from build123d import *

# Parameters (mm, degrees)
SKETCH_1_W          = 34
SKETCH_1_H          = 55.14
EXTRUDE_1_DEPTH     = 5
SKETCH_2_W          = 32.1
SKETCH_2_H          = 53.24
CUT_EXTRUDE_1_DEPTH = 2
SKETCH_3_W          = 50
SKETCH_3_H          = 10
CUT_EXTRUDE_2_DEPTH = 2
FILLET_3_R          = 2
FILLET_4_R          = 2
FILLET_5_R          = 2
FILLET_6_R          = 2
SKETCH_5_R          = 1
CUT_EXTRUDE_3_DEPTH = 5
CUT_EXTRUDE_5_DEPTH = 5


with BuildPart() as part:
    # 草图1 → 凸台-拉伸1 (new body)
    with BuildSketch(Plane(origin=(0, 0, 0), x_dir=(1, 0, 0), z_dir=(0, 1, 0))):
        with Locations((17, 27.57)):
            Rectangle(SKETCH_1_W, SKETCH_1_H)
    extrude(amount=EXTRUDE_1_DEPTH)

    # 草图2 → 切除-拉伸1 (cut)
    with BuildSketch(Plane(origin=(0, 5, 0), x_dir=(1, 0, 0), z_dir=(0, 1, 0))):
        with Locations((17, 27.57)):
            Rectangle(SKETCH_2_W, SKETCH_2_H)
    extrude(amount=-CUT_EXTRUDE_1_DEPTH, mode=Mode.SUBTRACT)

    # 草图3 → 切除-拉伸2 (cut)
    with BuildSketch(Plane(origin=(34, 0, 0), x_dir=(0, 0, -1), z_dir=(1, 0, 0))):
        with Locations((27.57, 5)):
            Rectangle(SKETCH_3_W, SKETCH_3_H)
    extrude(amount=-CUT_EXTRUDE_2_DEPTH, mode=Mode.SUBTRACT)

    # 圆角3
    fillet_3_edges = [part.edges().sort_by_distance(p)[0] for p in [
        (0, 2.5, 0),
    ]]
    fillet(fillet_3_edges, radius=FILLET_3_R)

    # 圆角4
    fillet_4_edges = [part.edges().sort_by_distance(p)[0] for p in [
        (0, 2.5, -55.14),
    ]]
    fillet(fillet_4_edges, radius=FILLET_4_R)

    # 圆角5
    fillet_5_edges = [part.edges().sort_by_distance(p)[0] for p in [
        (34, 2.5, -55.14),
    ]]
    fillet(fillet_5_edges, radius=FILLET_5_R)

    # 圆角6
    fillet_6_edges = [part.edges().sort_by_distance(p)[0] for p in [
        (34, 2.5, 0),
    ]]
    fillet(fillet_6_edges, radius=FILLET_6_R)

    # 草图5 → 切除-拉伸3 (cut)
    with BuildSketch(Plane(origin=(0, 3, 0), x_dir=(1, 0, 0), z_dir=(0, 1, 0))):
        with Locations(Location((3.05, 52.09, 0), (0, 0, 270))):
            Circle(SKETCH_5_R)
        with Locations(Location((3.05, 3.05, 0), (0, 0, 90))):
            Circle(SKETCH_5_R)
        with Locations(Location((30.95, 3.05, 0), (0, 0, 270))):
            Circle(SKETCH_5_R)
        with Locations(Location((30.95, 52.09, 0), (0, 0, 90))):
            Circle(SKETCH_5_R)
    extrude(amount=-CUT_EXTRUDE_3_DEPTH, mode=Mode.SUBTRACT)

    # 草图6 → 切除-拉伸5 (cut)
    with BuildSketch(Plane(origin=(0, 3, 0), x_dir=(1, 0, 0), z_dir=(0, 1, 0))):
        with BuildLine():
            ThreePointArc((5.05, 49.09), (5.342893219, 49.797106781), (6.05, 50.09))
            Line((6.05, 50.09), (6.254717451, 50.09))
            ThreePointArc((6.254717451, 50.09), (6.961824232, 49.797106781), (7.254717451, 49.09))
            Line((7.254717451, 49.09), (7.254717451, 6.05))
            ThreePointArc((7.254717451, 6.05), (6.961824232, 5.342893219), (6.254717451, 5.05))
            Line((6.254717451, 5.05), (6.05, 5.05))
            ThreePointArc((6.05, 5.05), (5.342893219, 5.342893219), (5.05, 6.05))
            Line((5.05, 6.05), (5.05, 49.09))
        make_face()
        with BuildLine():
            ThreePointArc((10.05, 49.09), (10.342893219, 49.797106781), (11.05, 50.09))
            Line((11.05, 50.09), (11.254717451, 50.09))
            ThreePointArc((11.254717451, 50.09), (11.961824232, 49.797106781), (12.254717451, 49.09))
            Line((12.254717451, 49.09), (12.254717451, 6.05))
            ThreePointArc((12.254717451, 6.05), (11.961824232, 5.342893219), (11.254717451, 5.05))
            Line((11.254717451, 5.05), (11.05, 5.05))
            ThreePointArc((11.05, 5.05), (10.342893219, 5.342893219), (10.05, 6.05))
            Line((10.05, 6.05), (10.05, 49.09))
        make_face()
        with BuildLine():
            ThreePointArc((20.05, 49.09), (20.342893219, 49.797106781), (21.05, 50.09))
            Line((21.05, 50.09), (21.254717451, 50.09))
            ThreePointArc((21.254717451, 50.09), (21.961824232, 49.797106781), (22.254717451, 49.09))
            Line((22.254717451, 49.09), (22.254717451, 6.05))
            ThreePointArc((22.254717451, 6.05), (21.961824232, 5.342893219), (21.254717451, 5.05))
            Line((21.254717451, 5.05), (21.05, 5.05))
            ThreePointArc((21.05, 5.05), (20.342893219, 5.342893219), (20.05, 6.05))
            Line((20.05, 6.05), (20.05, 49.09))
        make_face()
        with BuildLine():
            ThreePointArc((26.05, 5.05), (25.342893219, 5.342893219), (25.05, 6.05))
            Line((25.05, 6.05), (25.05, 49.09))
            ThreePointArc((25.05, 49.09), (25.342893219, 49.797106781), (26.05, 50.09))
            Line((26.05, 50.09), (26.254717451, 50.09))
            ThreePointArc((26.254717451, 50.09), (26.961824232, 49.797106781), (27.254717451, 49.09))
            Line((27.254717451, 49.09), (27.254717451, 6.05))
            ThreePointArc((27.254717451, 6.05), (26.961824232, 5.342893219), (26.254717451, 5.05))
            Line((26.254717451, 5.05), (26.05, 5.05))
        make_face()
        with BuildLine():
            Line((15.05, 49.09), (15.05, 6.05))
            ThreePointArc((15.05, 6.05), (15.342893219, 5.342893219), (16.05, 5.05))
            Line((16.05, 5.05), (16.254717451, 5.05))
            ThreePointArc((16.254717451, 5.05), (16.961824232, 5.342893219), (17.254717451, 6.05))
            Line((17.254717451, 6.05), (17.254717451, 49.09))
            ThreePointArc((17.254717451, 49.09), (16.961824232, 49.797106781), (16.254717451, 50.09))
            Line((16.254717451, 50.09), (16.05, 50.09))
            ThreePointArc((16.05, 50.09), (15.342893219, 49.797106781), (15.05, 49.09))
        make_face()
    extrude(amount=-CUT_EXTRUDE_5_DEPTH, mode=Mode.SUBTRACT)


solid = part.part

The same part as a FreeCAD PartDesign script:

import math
import FreeCAD as App
import Part
import Sketcher
from FreeCAD import Vector
Q = App.Units.Quantity


def edges_at(feature, points):
    """Names of the edges that pass closest to the given points."""
    edges = feature.Shape.Edges
    near = lambda p: min(range(len(edges)), key=lambda i: edges[i].distToShape(Part.Vertex(*p))[0])
    return sorted({f"Edge{near(p) + 1}" for p in points})

doc = App.newDocument("Part")
body = doc.addObject("PartDesign::Body", "Body")

# Sketch on XZ plane
sketch1 = body.newObject("Sketcher::SketchObject", "Sketch")
sketch1.AttachmentSupport = (doc.getObject("XZ_Plane"), [""])
sketch1.MapMode = "FlatFace"
sketch1.addGeometry([
    Part.LineSegment(Vector(0, -55, 0), Vector(0, 0, 0)),
    Part.LineSegment(Vector(0, 0, 0), Vector(34, 0, 0)),
    Part.LineSegment(Vector(34, 0, 0), Vector(34, -55, 0)),
    Part.LineSegment(Vector(34, -55, 0), Vector(0, -55, 0)),
], False)
sketch1.addConstraint([
    Sketcher.Constraint("Coincident", 0, 2, 1, 1),
    Sketcher.Constraint("Coincident", 1, 2, 2, 1),
    Sketcher.Constraint("Coincident", 2, 2, 3, 1),
    Sketcher.Constraint("Coincident", 3, 2, 0, 1),
    Sketcher.Constraint("Vertical", 0),
    Sketcher.Constraint("Horizontal", 1),
    Sketcher.Constraint("Vertical", 2),
    Sketcher.Constraint("Horizontal", 3),
    Sketcher.Constraint("Coincident", 0, 2, -1, 1),
    Sketcher.Constraint("DistanceX", 1, 1, 1, 2, Q("34 mm")),
    Sketcher.Constraint("DistanceY", 0, 1, 0, 2, Q("55.14 mm")),
])
pad1 = body.newObject("PartDesign::Pad", "Pad")
pad1.Profile = sketch1
pad1.Length = 5
pad1.Reversed = True

# Sketch on XZ plane
sketch2 = body.newObject("Sketcher::SketchObject", "Sketch001")
sketch2.AttachmentSupport = (doc.getObject("XZ_Plane"), [""])
sketch2.MapMode = "FlatFace"
sketch2.AttachmentOffset = App.Placement(Vector(0, 0, -5), App.Rotation())
sketch2.addGeometry([
    Part.LineSegment(Vector(1, -54, 0), Vector(1, -1, 0)),
    Part.LineSegment(Vector(1, -1, 0), Vector(33, -1, 0)),
    Part.LineSegment(Vector(33, -1, 0), Vector(33, -54, 0)),
    Part.LineSegment(Vector(33, -54, 0), Vector(1, -54, 0)),
], False)
sketch2.addConstraint([
    Sketcher.Constraint("Coincident", 0, 2, 1, 1),
    Sketcher.Constraint("Coincident", 1, 2, 2, 1),
    Sketcher.Constraint("Coincident", 2, 2, 3, 1),
    Sketcher.Constraint("Coincident", 3, 2, 0, 1),
    Sketcher.Constraint("Vertical", 0),
    Sketcher.Constraint("Horizontal", 1),
    Sketcher.Constraint("Vertical", 2),
    Sketcher.Constraint("Horizontal", 3),
    Sketcher.Constraint("DistanceX", 1, 1, 1, 2, Q("32.1 mm")),
    Sketcher.Constraint("DistanceY", 0, 1, 0, 2, Q("53.24 mm")),
    Sketcher.Constraint("DistanceX", -1, 1, 0, 2, Q("0.95 mm")),
    Sketcher.Constraint("DistanceY", 0, 2, -1, 1, Q("0.95 mm")),
])
pocket1 = body.newObject("PartDesign::Pocket", "Pocket")
pocket1.Profile = sketch2
pocket1.Length = 2
pocket1.Reversed = True

# Sketch on YZ plane
sketch3 = body.newObject("Sketcher::SketchObject", "Sketch002")
sketch3.AttachmentSupport = (doc.getObject("YZ_Plane"), [""])
sketch3.MapMode = "FlatFace"
sketch3.AttachmentOffset = App.Placement(Vector(0, 0, 34), App.Rotation())
sketch3.addGeometry([
    Part.LineSegment(Vector(10, -3, 0), Vector(0, -3, 0)),
    Part.LineSegment(Vector(0, -3, 0), Vector(0, -53, 0)),
    Part.LineSegment(Vector(0, -53, 0), Vector(10, -53, 0)),
    Part.LineSegment(Vector(10, -53, 0), Vector(10, -3, 0)),
], False)
sketch3.addConstraint([
    Sketcher.Constraint("Coincident", 0, 2, 1, 1),
    Sketcher.Constraint("Coincident", 1, 2, 2, 1),
    Sketcher.Constraint("Coincident", 2, 2, 3, 1),
    Sketcher.Constraint("Coincident", 3, 2, 0, 1),
    Sketcher.Constraint("Horizontal", 0),
    Sketcher.Constraint("Vertical", 1),
    Sketcher.Constraint("Horizontal", 2),
    Sketcher.Constraint("Vertical", 3),
    Sketcher.Constraint("PointOnObject", 0, 2, -2),
    Sketcher.Constraint("DistanceX", 0, 2, 0, 1, Q("10 mm")),
    Sketcher.Constraint("DistanceY", 1, 2, 1, 1, Q("50 mm")),
    Sketcher.Constraint("DistanceY", 0, 2, -1, 1, Q("2.57 mm")),
])
pocket2 = body.newObject("PartDesign::Pocket", "Pocket001")
pocket2.Profile = sketch3
pocket2.Length = 2
doc.recompute()

fillet = body.newObject("PartDesign::Fillet", "Fillet")
fillet.Base = (pocket2, edges_at(pocket2, [(0, 2.5, 0)]))
fillet.Radius = 2
doc.recompute()

fillet2 = body.newObject("PartDesign::Fillet", "Fillet001")
fillet2.Base = (fillet, edges_at(fillet, [(0, 2.5, -55.14)]))
fillet2.Radius = 2
doc.recompute()

fillet3 = body.newObject("PartDesign::Fillet", "Fillet002")
fillet3.Base = (fillet2, edges_at(fillet2, [(34, 2.5, -55.14)]))
fillet3.Radius = 2
doc.recompute()

fillet4 = body.newObject("PartDesign::Fillet", "Fillet003")
fillet4.Base = (fillet3, edges_at(fillet3, [(34, 2.5, 0)]))
fillet4.Radius = 2

# Sketch on XZ plane
sketch4 = body.newObject("Sketcher::SketchObject", "Sketch003")
sketch4.AttachmentSupport = (doc.getObject("XZ_Plane"), [""])
sketch4.MapMode = "FlatFace"
sketch4.AttachmentOffset = App.Placement(Vector(0, 0, -3), App.Rotation())
sketch4.addGeometry([
    Part.Circle(Vector(3, -52.1, 0), Vector(0, 0, 1), 1),
    Part.Circle(Vector(3, -3, 0), Vector(0, 0, 1), 1),
    Part.Circle(Vector(30.9, -3, 0), Vector(0, 0, 1), 1),
    Part.Circle(Vector(30.9, -52.1, 0), Vector(0, 0, 1), 1),
], False)
sketch4.addConstraint([
    Sketcher.Constraint("Equal", 0, 1),
    Sketcher.Constraint("Equal", 1, 2),
    Sketcher.Constraint("Equal", 2, 3),
    Sketcher.Constraint("Horizontal", 1, 3, 2, 3),
    Sketcher.Constraint("Horizontal", 0, 3, 3, 3),
    Sketcher.Constraint("Vertical", 0, 3, 1, 3),
    Sketcher.Constraint("Vertical", 2, 3, 3, 3),
    Sketcher.Constraint("Diameter", 0, Q("2 mm")),
    Sketcher.Constraint("DistanceX", 1, 3, 2, 3, Q("27.9 mm")),
    Sketcher.Constraint("DistanceX", -1, 1, 0, 3, Q("3.05 mm")),
    Sketcher.Constraint("DistanceY", 0, 3, -1, 1, Q("52.09 mm")),
    Sketcher.Constraint("DistanceY", 1, 3, -1, 1, Q("3.05 mm")),
])
pocket3 = body.newObject("PartDesign::Pocket", "Pocket002")
pocket3.Profile = sketch4
pocket3.Length = 5
pocket3.Reversed = True

# Sketch on XZ plane
sketch5 = body.newObject("Sketcher::SketchObject", "Sketch004")
sketch5.AttachmentSupport = (doc.getObject("XZ_Plane"), [""])
sketch5.MapMode = "FlatFace"
sketch5.AttachmentOffset = App.Placement(Vector(0, 0, -3), App.Rotation())
sketch5.addGeometry([
    Part.ArcOfCircle(Part.Circle(Vector(6.05, -49.09, 0), Vector(0, 0, 1), 1), math.radians(-180), math.radians(-90)),  # 0
    Part.LineSegment(Vector(5.05, -49.09, 0), Vector(5.05, -6.05, 0)),  # 1
    Part.ArcOfCircle(Part.Circle(Vector(6.05, -6.05, 0), Vector(0, 0, 1), 1), math.radians(90), math.radians(180)),  # 2
    Part.LineSegment(Vector(6.05, -5.05, 0), Vector(6.25, -5.05, 0)),  # 3
    Part.ArcOfCircle(Part.Circle(Vector(6.25, -6.05, 0), Vector(0, 0, 1), 1), math.radians(0), math.radians(90)),  # 4
    Part.LineSegment(Vector(7.25, -6.05, 0), Vector(7.25, -49.09, 0)),  # 5
    Part.ArcOfCircle(Part.Circle(Vector(6.25, -49.09, 0), Vector(0, 0, 1), 1), math.radians(-90), math.radians(0)),  # 6
    Part.LineSegment(Vector(6.25, -50.09, 0), Vector(6.05, -50.09, 0)),  # 7
    Part.ArcOfCircle(Part.Circle(Vector(11.05, -49.09, 0), Vector(0, 0, 1), 1), math.radians(-180), math.radians(-90)),  # 8
    Part.LineSegment(Vector(10.05, -49.09, 0), Vector(10.05, -6.05, 0)),  # 9
    Part.ArcOfCircle(Part.Circle(Vector(11.05, -6.05, 0), Vector(0, 0, 1), 1), math.radians(90), math.radians(180)),  # 10
    Part.LineSegment(Vector(11.05, -5.05, 0), Vector(11.25, -5.05, 0)),  # 11
    Part.ArcOfCircle(Part.Circle(Vector(11.25, -6.05, 0), Vector(0, 0, 1), 1), math.radians(0), math.radians(90)),  # 12
    Part.LineSegment(Vector(12.25, -6.05, 0), Vector(12.25, -49.09, 0)),  # 13
    Part.ArcOfCircle(Part.Circle(Vector(11.25, -49.09, 0), Vector(0, 0, 1), 1), math.radians(-90), math.radians(0)),  # 14
    Part.LineSegment(Vector(11.25, -50.09, 0), Vector(11.05, -50.09, 0)),  # 15
    Part.ArcOfCircle(Part.Circle(Vector(21.05, -49.09, 0), Vector(0, 0, 1), 1), math.radians(-180), math.radians(-90)),  # 16
    Part.LineSegment(Vector(20.05, -49.09, 0), Vector(20.05, -6.05, 0)),  # 17
    Part.ArcOfCircle(Part.Circle(Vector(21.05, -6.05, 0), Vector(0, 0, 1), 1), math.radians(90), math.radians(180)),  # 18
    Part.LineSegment(Vector(21.05, -5.05, 0), Vector(21.25, -5.05, 0)),  # 19
    Part.ArcOfCircle(Part.Circle(Vector(21.25, -6.05, 0), Vector(0, 0, 1), 1), math.radians(0), math.radians(90)),  # 20
    Part.LineSegment(Vector(22.25, -6.05, 0), Vector(22.25, -49.09, 0)),  # 21
    Part.ArcOfCircle(Part.Circle(Vector(21.25, -49.09, 0), Vector(0, 0, 1), 1), math.radians(-90), math.radians(0)),  # 22
    Part.LineSegment(Vector(21.25, -50.09, 0), Vector(21.05, -50.09, 0)),  # 23
    Part.ArcOfCircle(Part.Circle(Vector(26.05, -6.05, 0), Vector(0, 0, 1), 1), math.radians(90), math.radians(180)),  # 24
    Part.LineSegment(Vector(26.05, -5.05, 0), Vector(26.25, -5.05, 0)),  # 25
    Part.ArcOfCircle(Part.Circle(Vector(26.25, -6.05, 0), Vector(0, 0, 1), 1), math.radians(0), math.radians(90)),  # 26
    Part.LineSegment(Vector(27.25, -6.05, 0), Vector(27.25, -49.09, 0)),  # 27
    Part.ArcOfCircle(Part.Circle(Vector(26.25, -49.09, 0), Vector(0, 0, 1), 1), math.radians(-90), math.radians(0)),  # 28
    Part.LineSegment(Vector(26.25, -50.09, 0), Vector(26.05, -50.09, 0)),  # 29
    Part.ArcOfCircle(Part.Circle(Vector(26.05, -49.09, 0), Vector(0, 0, 1), 1), math.radians(-180), math.radians(-90)),  # 30
    Part.LineSegment(Vector(25.05, -49.09, 0), Vector(25.05, -6.05, 0)),  # 31
    Part.LineSegment(Vector(15.05, -49.09, 0), Vector(15.05, -6.05, 0)),  # 32
    Part.ArcOfCircle(Part.Circle(Vector(16.05, -6.05, 0), Vector(0, 0, 1), 1), math.radians(90), math.radians(180)),  # 33
    Part.LineSegment(Vector(16.05, -5.05, 0), Vector(16.25, -5.05, 0)),  # 34
    Part.ArcOfCircle(Part.Circle(Vector(16.25, -6.05, 0), Vector(0, 0, 1), 1), math.radians(0), math.radians(90)),  # 35
    Part.LineSegment(Vector(17.25, -6.05, 0), Vector(17.25, -49.09, 0)),  # 36
    Part.ArcOfCircle(Part.Circle(Vector(16.25, -49.09, 0), Vector(0, 0, 1), 1), math.radians(-90), math.radians(0)),  # 37
    Part.LineSegment(Vector(16.25, -50.09, 0), Vector(16.05, -50.09, 0)),  # 38
    Part.ArcOfCircle(Part.Circle(Vector(16.05, -49.09, 0), Vector(0, 0, 1), 1), math.radians(-180), math.radians(-90)),  # 39
], False)
sketch5.addConstraint([
    Sketcher.Constraint("Tangent", 0, 1, 1, 1),
    Sketcher.Constraint("Tangent", 1, 2, 2, 2),
    Sketcher.Constraint("Tangent", 2, 1, 3, 1),
    Sketcher.Constraint("Tangent", 3, 2, 4, 2),
    Sketcher.Constraint("Tangent", 4, 1, 5, 1),
    Sketcher.Constraint("Tangent", 5, 2, 6, 2),
    Sketcher.Constraint("Tangent", 6, 1, 7, 1),
    Sketcher.Constraint("Tangent", 7, 2, 0, 2),
    Sketcher.Constraint("Tangent", 8, 1, 9, 1),
    Sketcher.Constraint("Tangent", 9, 2, 10, 2),
    Sketcher.Constraint("Tangent", 10, 1, 11, 1),
    Sketcher.Constraint("Tangent", 11, 2, 12, 2),
    Sketcher.Constraint("Tangent", 12, 1, 13, 1),
    Sketcher.Constraint("Tangent", 13, 2, 14, 2),
    Sketcher.Constraint("Tangent", 14, 1, 15, 1),
    Sketcher.Constraint("Tangent", 15, 2, 8, 2),
    Sketcher.Constraint("Tangent", 16, 1, 17, 1),
    Sketcher.Constraint("Tangent", 17, 2, 18, 2),
    Sketcher.Constraint("Tangent", 18, 1, 19, 1),
    Sketcher.Constraint("Tangent", 19, 2, 20, 2),
    Sketcher.Constraint("Tangent", 20, 1, 21, 1),
    Sketcher.Constraint("Tangent", 21, 2, 22, 2),
    Sketcher.Constraint("Tangent", 22, 1, 23, 1),
    Sketcher.Constraint("Tangent", 23, 2, 16, 2),
    Sketcher.Constraint("Tangent", 24, 1, 25, 1),
    Sketcher.Constraint("Tangent", 25, 2, 26, 2),
    Sketcher.Constraint("Tangent", 26, 1, 27, 1),
    Sketcher.Constraint("Tangent", 27, 2, 28, 2),
    Sketcher.Constraint("Tangent", 28, 1, 29, 1),
    Sketcher.Constraint("Tangent", 29, 2, 30, 2),
    Sketcher.Constraint("Tangent", 30, 1, 31, 1),
    Sketcher.Constraint("Tangent", 31, 2, 24, 2),
    Sketcher.Constraint("Tangent", 32, 2, 33, 2),
    Sketcher.Constraint("Tangent", 33, 1, 34, 1),
    Sketcher.Constraint("Tangent", 34, 2, 35, 2),
    Sketcher.Constraint("Tangent", 35, 1, 36, 1),
    Sketcher.Constraint("Tangent", 36, 2, 37, 2),
    Sketcher.Constraint("Tangent", 37, 1, 38, 1),
    Sketcher.Constraint("Tangent", 38, 2, 39, 2),
    Sketcher.Constraint("Tangent", 39, 1, 32, 1),
    Sketcher.Constraint("Vertical", 1),
    Sketcher.Constraint("Horizontal", 3),
    Sketcher.Constraint("Vertical", 5),
    Sketcher.Constraint("Horizontal", 7),
    Sketcher.Constraint("Vertical", 9),
    Sketcher.Constraint("Horizontal", 11),
    Sketcher.Constraint("Vertical", 13),
    Sketcher.Constraint("Horizontal", 15),
    Sketcher.Constraint("Vertical", 17),
    Sketcher.Constraint("Horizontal", 19),
    Sketcher.Constraint("Vertical", 21),
    Sketcher.Constraint("Horizontal", 23),
    Sketcher.Constraint("Horizontal", 25),
    Sketcher.Constraint("Vertical", 27),
    Sketcher.Constraint("Horizontal", 29),
    Sketcher.Constraint("Vertical", 31),
    Sketcher.Constraint("Vertical", 32),
    Sketcher.Constraint("Horizontal", 34),
    Sketcher.Constraint("Vertical", 36),
    Sketcher.Constraint("Horizontal", 38),
    Sketcher.Constraint("Equal", 0, 2),
    Sketcher.Constraint("Equal", 2, 4),
    Sketcher.Constraint("Equal", 4, 6),
    Sketcher.Constraint("Equal", 6, 8),
    Sketcher.Constraint("Equal", 8, 10),
    Sketcher.Constraint("Equal", 10, 12),
    Sketcher.Constraint("Equal", 12, 14),
    Sketcher.Constraint("Equal", 14, 16),
    Sketcher.Constraint("Equal", 16, 18),
    Sketcher.Constraint("Equal", 18, 20),
    Sketcher.Constraint("Equal", 20, 22),
    Sketcher.Constraint("Equal", 22, 24),
    Sketcher.Constraint("Equal", 24, 26),
    Sketcher.Constraint("Equal", 26, 28),
    Sketcher.Constraint("Equal", 28, 30),
    Sketcher.Constraint("Equal", 30, 33),
    Sketcher.Constraint("Equal", 33, 35),
    Sketcher.Constraint("Equal", 35, 37),
    Sketcher.Constraint("Equal", 37, 39),
    Sketcher.Constraint("Horizontal", 6, 3, 8, 3),
    Sketcher.Constraint("Horizontal", 4, 3, 10, 3),
    Sketcher.Constraint("Horizontal", 14, 3, 16, 3),
    Sketcher.Constraint("Horizontal", 12, 3, 18, 3),
    Sketcher.Constraint("Horizontal", 20, 3, 24, 3),
    Sketcher.Constraint("Horizontal", 22, 3, 28, 3),
    Sketcher.Constraint("Horizontal", 26, 3, 33, 3),
    Sketcher.Constraint("Horizontal", 30, 3, 37, 3),
    Sketcher.Constraint("Equal", 7, 11),
    Sketcher.Constraint("Equal", 15, 19),
    Sketcher.Constraint("Equal", 23, 25),
    Sketcher.Constraint("Equal", 29, 34),
    Sketcher.Constraint("Radius", 0, Q("1 mm")),
    Sketcher.Constraint("DistanceX", 0, 3, 8, 3, Q("5 mm")),
    Sketcher.Constraint("DistanceX", 8, 3, 16, 3, Q("10 mm")),
    Sketcher.Constraint("DistanceX", 18, 3, 24, 3, Q("5 mm")),
    Sketcher.Constraint("DistanceX", 10, 3, 33, 3, Q("5 mm")),
    Sketcher.Constraint("DistanceY", 1, 1, 1, 2, Q("43.04 mm")),
    Sketcher.Constraint("DistanceX", -1, 1, 0, 3, Q("6.05 mm")),
    Sketcher.Constraint("DistanceY", 0, 3, -1, 1, Q("49.09 mm")),
    Sketcher.Constraint("DistanceX", 3, 1, 3, 2, Q("0.204717 mm")),
])
pocket4 = body.newObject("PartDesign::Pocket", "Pocket003")
pocket4.Profile = sketch5
pocket4.Length = 5
pocket4.Reversed = True

doc.recompute()
